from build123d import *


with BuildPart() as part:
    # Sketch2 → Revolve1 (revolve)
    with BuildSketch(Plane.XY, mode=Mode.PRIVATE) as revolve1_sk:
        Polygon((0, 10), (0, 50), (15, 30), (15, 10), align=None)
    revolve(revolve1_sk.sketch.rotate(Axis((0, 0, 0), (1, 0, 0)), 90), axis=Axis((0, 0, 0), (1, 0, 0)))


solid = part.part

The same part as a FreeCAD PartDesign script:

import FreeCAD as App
import Part
import Sketcher
Q = App.Units.Quantity

doc = App.newDocument("Part")
body = doc.addObject("PartDesign::Body", "Body")

# Sketch on XY plane
sketch1 = body.newObject("Sketcher::SketchObject", "Sketch")
sketch1.AttachmentSupport = (doc.getObject("XY_Plane"), [""])
sketch1.MapMode = "FlatFace"
sketch1.addGeometry(Part.LineSegment(App.Vector(0, 50, 0), App.Vector(0, 10, 0)), False)
sketch1.addGeometry(Part.LineSegment(App.Vector(0, 10, 0), App.Vector(15, 10, 0)), False)
sketch1.addGeometry(Part.LineSegment(App.Vector(15, 10, 0), App.Vector(15, 30, 0)), False)
sketch1.addGeometry(Part.LineSegment(App.Vector(15, 30, 0), App.Vector(0, 50, 0)), False)
sketch1.addConstraint(Sketcher.Constraint("Coincident", 0, 2, 1, 1))
sketch1.addConstraint(Sketcher.Constraint("Coincident", 1, 2, 2, 1))
sketch1.addConstraint(Sketcher.Constraint("Coincident", 2, 2, 3, 1))
sketch1.addConstraint(Sketcher.Constraint("Coincident", 3, 2, 0, 1))
sketch1.addConstraint(Sketcher.Constraint("Vertical", 0))
sketch1.addConstraint(Sketcher.Constraint("Horizontal", 1))
sketch1.addConstraint(Sketcher.Constraint("Vertical", 2))
sketch1.addConstraint(Sketcher.Constraint("PointOnObject", 0, 2, -2))
sketch1.addConstraint(Sketcher.Constraint("DistanceX", 1, 1, 1, 2, Q("15 mm")))
sketch1.addConstraint(Sketcher.Constraint("DistanceY", 0, 2, 0, 1, Q("40 mm")))
sketch1.addConstraint(Sketcher.Constraint("DistanceY", 2, 1, 2, 2, Q("20 mm")))
sketch1.addConstraint(Sketcher.Constraint("DistanceY", -1, 1, 0, 2, Q("10 mm")))
revolution = body.newObject("PartDesign::Revolution", "Revolution")
revolution.Profile = sketch1
revolution.ReferenceAxis = (sketch1, ["H_Axis"])
revolution.Angle = 360

doc.recompute()
